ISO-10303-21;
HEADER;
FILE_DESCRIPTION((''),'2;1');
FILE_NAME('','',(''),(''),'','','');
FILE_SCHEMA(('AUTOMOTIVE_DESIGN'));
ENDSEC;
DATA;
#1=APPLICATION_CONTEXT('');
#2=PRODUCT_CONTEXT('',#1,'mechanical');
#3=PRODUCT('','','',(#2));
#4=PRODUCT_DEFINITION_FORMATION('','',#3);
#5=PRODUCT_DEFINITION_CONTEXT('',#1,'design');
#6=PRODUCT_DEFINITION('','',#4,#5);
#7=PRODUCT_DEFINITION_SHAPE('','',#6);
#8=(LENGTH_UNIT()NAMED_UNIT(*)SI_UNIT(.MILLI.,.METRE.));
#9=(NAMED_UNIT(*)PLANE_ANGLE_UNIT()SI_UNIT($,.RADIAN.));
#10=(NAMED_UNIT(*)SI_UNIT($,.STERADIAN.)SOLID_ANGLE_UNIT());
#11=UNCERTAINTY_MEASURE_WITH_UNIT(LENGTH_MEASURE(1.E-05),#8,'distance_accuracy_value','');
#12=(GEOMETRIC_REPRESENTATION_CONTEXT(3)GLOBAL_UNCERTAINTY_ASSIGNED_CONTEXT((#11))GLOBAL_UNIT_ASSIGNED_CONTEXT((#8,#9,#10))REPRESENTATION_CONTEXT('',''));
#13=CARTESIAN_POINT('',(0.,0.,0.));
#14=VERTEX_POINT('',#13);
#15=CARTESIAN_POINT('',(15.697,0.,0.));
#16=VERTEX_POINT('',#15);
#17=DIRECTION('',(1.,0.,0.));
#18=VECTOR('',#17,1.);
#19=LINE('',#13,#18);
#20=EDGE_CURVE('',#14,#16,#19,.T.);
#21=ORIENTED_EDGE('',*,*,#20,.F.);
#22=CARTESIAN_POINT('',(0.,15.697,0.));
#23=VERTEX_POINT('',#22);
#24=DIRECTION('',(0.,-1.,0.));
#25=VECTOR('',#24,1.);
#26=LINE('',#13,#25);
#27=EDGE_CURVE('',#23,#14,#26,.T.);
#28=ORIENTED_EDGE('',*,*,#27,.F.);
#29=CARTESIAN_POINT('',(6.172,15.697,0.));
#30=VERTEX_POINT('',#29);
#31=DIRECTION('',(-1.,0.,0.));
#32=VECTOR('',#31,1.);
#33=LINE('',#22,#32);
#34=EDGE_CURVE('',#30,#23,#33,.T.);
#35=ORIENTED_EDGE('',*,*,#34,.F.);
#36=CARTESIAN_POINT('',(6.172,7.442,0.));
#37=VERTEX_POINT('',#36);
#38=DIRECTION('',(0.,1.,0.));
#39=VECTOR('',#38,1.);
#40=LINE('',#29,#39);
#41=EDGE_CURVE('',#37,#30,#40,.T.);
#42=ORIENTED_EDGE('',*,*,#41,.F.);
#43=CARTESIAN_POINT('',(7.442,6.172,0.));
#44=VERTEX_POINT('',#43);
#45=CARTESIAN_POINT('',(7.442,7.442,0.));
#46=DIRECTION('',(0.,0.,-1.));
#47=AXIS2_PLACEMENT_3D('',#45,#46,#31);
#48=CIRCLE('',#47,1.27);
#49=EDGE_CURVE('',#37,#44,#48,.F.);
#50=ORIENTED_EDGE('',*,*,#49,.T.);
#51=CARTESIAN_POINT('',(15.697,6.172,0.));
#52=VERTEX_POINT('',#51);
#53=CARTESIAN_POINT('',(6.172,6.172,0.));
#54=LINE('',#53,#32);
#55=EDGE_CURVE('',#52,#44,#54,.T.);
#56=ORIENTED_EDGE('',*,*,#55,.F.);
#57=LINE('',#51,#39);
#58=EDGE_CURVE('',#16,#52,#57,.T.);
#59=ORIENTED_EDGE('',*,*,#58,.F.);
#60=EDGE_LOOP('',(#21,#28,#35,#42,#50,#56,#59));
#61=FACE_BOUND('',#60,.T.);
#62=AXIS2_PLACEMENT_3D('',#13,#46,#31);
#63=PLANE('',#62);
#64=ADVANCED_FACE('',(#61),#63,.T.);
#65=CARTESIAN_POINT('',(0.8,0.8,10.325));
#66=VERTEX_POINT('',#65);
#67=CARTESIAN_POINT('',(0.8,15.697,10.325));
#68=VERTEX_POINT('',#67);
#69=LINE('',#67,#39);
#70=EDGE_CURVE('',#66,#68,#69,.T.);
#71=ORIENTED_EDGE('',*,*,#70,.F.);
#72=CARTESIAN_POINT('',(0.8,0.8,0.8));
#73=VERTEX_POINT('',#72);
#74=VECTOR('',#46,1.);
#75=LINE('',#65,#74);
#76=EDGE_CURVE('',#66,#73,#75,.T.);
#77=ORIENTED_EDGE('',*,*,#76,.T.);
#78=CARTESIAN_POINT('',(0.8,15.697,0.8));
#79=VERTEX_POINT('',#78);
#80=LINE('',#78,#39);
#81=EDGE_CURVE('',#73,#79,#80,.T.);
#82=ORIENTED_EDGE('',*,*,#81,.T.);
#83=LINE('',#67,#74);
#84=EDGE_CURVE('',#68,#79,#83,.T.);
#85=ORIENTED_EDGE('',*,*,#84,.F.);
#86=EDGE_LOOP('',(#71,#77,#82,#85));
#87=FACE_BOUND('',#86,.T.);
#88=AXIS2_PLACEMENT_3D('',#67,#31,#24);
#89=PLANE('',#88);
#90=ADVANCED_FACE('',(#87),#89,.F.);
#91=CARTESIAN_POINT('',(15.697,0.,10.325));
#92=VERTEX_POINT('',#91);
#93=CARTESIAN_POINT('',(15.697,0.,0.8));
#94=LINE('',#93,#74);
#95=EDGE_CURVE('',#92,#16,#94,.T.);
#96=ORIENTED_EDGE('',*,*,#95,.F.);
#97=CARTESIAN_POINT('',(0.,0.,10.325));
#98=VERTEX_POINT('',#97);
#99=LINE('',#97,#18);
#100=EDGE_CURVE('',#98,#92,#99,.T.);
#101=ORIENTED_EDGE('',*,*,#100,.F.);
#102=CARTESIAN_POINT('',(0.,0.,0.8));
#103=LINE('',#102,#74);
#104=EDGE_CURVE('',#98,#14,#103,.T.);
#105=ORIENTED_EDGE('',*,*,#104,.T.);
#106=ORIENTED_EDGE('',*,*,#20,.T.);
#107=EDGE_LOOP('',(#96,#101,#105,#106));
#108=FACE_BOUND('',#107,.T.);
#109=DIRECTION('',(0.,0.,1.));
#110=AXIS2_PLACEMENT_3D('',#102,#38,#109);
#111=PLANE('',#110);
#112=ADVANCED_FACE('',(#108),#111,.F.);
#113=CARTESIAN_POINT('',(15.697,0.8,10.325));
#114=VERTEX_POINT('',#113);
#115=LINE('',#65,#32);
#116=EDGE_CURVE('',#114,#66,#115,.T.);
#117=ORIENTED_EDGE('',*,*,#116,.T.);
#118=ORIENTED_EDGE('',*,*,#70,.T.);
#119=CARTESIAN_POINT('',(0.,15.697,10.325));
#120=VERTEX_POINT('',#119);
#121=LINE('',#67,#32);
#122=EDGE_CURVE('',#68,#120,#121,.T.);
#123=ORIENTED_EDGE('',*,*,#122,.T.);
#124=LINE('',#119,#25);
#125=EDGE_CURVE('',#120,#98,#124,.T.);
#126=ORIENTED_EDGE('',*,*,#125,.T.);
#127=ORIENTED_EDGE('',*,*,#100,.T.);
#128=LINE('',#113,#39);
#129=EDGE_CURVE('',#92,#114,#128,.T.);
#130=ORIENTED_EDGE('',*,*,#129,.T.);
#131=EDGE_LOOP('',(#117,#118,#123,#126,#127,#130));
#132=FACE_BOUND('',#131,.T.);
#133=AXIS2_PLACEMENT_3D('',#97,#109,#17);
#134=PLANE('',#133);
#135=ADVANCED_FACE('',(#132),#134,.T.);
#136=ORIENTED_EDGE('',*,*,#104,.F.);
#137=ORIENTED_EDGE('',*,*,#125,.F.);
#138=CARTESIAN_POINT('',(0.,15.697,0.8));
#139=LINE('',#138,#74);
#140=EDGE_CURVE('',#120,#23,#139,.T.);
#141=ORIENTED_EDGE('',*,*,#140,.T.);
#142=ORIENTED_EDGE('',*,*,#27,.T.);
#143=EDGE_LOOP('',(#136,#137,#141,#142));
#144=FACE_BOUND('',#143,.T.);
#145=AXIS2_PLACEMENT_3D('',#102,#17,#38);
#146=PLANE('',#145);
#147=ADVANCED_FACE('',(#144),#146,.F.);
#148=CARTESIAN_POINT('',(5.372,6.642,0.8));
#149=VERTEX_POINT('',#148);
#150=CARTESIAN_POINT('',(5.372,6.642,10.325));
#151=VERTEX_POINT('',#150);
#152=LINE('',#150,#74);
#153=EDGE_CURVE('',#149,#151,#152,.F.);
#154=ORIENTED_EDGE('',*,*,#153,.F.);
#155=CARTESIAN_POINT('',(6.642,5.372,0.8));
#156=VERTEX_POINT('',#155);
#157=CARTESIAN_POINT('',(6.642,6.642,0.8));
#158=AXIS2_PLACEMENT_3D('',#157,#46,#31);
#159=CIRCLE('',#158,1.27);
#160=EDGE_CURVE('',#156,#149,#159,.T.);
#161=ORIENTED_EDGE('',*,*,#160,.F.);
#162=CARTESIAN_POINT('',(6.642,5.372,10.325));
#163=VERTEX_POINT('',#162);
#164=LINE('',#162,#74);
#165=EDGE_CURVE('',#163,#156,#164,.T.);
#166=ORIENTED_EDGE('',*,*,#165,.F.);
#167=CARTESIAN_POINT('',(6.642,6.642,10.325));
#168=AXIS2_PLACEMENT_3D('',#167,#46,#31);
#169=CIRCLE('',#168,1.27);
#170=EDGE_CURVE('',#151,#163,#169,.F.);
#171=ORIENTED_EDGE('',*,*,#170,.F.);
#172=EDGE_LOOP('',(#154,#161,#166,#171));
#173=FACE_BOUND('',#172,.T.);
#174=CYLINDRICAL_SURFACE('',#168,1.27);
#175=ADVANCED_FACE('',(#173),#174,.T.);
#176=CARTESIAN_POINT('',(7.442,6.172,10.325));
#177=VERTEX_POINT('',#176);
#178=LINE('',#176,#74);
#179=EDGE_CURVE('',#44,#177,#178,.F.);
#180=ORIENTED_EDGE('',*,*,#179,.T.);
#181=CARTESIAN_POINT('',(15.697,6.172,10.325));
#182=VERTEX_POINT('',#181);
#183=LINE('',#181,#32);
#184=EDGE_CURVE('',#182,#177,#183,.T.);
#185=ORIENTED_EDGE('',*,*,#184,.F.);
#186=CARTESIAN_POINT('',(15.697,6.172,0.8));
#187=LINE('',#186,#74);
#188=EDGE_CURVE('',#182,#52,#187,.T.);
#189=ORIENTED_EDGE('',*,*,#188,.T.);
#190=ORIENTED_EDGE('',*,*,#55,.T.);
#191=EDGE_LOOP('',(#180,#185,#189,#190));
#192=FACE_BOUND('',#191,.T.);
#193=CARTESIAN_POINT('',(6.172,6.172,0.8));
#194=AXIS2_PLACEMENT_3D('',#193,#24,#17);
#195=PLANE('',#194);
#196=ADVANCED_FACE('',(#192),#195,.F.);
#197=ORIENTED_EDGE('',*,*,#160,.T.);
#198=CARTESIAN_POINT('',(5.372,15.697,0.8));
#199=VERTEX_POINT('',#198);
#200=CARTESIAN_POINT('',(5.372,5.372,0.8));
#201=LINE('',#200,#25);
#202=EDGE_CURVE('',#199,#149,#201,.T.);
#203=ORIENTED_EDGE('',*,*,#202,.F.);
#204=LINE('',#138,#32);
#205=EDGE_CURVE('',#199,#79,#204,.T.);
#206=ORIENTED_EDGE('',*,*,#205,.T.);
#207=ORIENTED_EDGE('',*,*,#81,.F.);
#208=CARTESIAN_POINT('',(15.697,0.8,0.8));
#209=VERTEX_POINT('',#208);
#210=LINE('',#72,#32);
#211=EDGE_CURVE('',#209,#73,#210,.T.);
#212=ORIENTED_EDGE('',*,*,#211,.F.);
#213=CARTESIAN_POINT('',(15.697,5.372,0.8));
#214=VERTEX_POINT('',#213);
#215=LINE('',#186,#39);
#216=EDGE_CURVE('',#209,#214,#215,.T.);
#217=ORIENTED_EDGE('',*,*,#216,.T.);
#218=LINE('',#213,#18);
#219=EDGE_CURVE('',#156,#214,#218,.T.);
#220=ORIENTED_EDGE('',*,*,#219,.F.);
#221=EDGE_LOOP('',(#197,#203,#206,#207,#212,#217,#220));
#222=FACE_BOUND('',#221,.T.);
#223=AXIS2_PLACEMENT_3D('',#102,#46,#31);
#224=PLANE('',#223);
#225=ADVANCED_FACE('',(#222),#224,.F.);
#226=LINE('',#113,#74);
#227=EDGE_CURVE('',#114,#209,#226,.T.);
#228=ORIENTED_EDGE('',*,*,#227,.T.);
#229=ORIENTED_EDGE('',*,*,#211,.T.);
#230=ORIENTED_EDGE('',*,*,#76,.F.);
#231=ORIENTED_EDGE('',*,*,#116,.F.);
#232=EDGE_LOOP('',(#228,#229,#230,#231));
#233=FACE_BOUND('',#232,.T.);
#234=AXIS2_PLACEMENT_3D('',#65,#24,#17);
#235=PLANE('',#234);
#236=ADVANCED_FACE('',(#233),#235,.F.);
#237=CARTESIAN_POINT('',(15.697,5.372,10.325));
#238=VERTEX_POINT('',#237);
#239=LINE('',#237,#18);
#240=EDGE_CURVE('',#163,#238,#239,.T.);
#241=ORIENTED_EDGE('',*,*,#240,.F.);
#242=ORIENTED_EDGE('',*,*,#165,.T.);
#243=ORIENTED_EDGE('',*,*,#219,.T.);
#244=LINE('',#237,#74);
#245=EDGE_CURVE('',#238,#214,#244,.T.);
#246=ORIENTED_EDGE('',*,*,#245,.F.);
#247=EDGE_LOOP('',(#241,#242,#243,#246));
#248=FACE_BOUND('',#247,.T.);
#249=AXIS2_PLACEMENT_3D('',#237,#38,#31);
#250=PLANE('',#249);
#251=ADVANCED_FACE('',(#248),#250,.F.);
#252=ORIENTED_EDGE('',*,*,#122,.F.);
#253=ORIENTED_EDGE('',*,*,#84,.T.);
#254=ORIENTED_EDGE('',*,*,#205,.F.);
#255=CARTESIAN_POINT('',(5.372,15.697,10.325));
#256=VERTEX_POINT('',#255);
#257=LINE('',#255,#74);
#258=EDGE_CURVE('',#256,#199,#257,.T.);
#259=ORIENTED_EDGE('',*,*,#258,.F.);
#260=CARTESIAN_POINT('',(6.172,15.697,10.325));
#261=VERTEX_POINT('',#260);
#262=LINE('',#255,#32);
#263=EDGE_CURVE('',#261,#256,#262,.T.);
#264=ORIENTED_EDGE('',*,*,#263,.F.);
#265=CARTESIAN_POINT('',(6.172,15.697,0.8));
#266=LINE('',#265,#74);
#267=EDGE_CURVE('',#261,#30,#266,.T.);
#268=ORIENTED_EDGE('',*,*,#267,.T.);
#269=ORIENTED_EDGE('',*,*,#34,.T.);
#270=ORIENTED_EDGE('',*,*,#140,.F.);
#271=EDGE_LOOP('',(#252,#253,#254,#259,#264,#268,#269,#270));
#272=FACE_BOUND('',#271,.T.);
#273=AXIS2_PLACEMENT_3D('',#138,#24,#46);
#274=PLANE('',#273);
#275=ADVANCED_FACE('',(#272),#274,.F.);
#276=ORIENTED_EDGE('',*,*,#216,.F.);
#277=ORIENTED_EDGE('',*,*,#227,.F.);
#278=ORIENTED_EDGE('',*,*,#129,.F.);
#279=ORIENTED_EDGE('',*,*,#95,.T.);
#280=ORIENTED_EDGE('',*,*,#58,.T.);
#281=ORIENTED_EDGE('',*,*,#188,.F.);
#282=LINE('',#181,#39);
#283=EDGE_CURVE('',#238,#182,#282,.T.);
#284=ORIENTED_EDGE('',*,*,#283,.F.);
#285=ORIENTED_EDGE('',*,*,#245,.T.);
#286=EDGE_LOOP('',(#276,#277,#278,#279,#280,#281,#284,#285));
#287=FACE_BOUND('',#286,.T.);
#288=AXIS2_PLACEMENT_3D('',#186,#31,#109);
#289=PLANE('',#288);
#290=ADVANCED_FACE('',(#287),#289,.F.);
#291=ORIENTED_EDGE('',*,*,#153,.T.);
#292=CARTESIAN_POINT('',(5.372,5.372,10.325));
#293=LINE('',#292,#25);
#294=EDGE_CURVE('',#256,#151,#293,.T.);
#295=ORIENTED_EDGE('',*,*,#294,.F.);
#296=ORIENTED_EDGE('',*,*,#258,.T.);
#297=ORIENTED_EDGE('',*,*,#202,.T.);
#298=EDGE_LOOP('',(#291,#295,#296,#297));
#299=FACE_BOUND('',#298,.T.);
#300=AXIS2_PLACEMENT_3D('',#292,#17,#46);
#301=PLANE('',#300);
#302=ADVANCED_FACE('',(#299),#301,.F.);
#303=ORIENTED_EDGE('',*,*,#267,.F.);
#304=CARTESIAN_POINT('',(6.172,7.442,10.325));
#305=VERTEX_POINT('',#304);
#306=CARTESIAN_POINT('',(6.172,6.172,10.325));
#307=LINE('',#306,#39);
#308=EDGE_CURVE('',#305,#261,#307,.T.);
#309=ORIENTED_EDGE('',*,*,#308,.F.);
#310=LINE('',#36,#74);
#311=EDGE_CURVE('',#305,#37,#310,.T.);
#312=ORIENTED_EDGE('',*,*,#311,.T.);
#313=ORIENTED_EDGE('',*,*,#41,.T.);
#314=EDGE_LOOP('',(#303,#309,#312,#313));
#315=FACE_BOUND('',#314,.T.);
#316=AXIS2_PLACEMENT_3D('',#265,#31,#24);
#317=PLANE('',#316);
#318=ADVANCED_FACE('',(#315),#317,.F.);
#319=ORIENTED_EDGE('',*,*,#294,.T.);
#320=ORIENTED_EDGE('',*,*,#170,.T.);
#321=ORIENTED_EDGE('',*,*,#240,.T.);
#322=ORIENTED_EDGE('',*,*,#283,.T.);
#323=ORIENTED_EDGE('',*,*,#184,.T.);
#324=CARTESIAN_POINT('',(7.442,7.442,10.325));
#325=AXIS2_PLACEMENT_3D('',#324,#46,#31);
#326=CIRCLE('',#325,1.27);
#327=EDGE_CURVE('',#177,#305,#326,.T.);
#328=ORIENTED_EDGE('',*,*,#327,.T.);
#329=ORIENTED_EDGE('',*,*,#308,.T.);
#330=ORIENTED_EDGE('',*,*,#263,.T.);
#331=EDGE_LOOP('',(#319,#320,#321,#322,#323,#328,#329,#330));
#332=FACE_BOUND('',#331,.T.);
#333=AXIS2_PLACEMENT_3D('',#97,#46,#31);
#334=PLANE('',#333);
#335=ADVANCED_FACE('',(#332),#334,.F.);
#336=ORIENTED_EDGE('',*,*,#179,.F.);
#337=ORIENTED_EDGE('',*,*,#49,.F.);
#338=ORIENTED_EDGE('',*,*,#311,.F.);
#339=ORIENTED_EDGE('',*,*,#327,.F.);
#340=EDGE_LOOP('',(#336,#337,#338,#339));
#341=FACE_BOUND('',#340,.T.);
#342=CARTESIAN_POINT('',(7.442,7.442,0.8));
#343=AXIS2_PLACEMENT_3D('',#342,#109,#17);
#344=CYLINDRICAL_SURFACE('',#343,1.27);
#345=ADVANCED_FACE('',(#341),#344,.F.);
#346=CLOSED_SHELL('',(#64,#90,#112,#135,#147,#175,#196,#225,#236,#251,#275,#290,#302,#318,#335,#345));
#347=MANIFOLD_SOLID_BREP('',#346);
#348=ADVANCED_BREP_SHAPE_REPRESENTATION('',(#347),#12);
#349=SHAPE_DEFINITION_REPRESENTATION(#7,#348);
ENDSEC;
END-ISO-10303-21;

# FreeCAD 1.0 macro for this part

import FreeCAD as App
import Part
import Sketcher
from FreeCAD import Vector
Q = App.Units.Quantity


def edges_at(feature, points):
    """Names of the edges that pass closest to the given points."""
    edges = feature.Shape.Edges
    near = lambda p: min(range(len(edges)), key=lambda i: edges[i].distToShape(Part.Vertex(*p))[0])
    return sorted({f"Edge{near(p) + 1}" for p in points})

doc = App.newDocument("Part")
body = doc.addObject("PartDesign::Body", "Body")

sketch1 = body.newObject("Sketcher::SketchObject", "Sketch")
sketch1.AttachmentSupport = (doc.getObject("XY_Plane"), [""])
sketch1.MapMode = "FlatFace"
sketch1.addGeometry([
    Part.LineSegment(Vector(0, 15.697, 0), Vector(0, 0, 0)),
    Part.LineSegment(Vector(0, 0, 0), Vector(15.697, 0, 0)),
    Part.LineSegment(Vector(15.697, 0, 0), Vector(15.697, 6.172, 0)),
    Part.LineSegment(Vector(15.697, 6.172, 0), Vector(6.172, 6.172, 0)),
    Part.LineSegment(Vector(6.172, 6.172, 0), Vector(6.172, 15.697, 0)),
    Part.LineSegment(Vector(6.172, 15.697, 0), Vector(0, 15.697, 0)),
], False)
sketch1.addConstraint([
    Sketcher.Constraint("Coincident", 0, 2, 1, 1),
    Sketcher.Constraint("Coincident", 1, 2, 2, 1),
    Sketcher.Constraint("Coincident", 2, 2, 3, 1),
    Sketcher.Constraint("Coincident", 3, 2, 4, 1),
    Sketcher.Constraint("Coincident", 4, 2, 5, 1),
    Sketcher.Constraint("Coincident", 5, 2, 0, 1),
    Sketcher.Constraint("Vertical", 0),
    Sketcher.Constraint("Horizontal", 1),
    Sketcher.Constraint("Vertical", 2),
    Sketcher.Constraint("Horizontal", 3),
    Sketcher.Constraint("Vertical", 4),
    Sketcher.Constraint("Horizontal", 5),
    Sketcher.Constraint("Coincident", 0, 2, -1, 1),
    Sketcher.Constraint("Equal", 1, 0),
    Sketcher.Constraint("Equal", 5, 2),
    Sketcher.Constraint("DistanceX", 3, 2, 3, 1, Q("0.375 in")),
    Sketcher.Constraint("DistanceX", 1, 1, 1, 2, Q("15.697 mm")),
])
pad1 = body.newObject("PartDesign::Pad", "Pad")
pad1.Profile = sketch1
pad1.Length = 0.8

sketch2 = body.newObject("Sketcher::SketchObject", "Sketch001")
sketch2.AttachmentSupport = (doc.getObject("XY_Plane"), [""])
sketch2.MapMode = "FlatFace"
sketch2.AttachmentOffset = App.Placement(Vector(0, 0, 0.8), App.Rotation())
sketch2.addGeometry([
    Part.LineSegment(Vector(15.697, 0.8, 0), Vector(0.8, 0.8, 0)),
    Part.LineSegment(Vector(0.8, 0.8, 0), Vector(0.8, 15.697, 0)),
    Part.LineSegment(Vector(0.8, 15.697, 0), Vector(0, 15.697, 0)),
    Part.LineSegment(Vector(0, 15.697, 0), Vector(0, 0, 0)),
    Part.LineSegment(Vector(0, 0, 0), Vector(15.697, 0, 0)),
    Part.LineSegment(Vector(15.697, 0, 0), Vector(15.697, 0.8, 0)),
    Part.LineSegment(Vector(5.372, 5.372, 0), Vector(15.697, 5.372, 0)),
    Part.LineSegment(Vector(15.697, 5.372, 0), Vector(15.697, 6.172, 0)),
    Part.LineSegment(Vector(15.697, 6.172, 0), Vector(6.172, 6.172, 0)),
    Part.LineSegment(Vector(6.172, 6.172, 0), Vector(6.172, 15.697, 0)),
    Part.LineSegment(Vector(6.172, 15.697, 0), Vector(5.372, 15.697, 0)),
    Part.LineSegment(Vector(5.372, 15.697, 0), Vector(5.372, 5.372, 0)),
], False)
sketch2.addConstraint([
    Sketcher.Constraint("Coincident", 0, 2, 1, 1),
    Sketcher.Constraint("Coincident", 1, 2, 2, 1),
    Sketcher.Constraint("Coincident", 2, 2, 3, 1),
    Sketcher.Constraint("Coincident", 3, 2, 4, 1),
    Sketcher.Constraint("Coincident", 4, 2, 5, 1),
    Sketcher.Constraint("Coincident", 5, 2, 0, 1),
    Sketcher.Constraint("Coincident", 6, 2, 7, 1),
    Sketcher.Constraint("Coincident", 7, 2, 8, 1),
    Sketcher.Constraint("Coincident", 8, 2, 9, 1),
    Sketcher.Constraint("Coincident", 9, 2, 10, 1),
    Sketcher.Constraint("Coincident", 10, 2, 11, 1),
    Sketcher.Constraint("Coincident", 11, 2, 6, 1),
    Sketcher.Constraint("Horizontal", 0),
    Sketcher.Constraint("Vertical", 1),
    Sketcher.Constraint("Horizontal", 2),
    Sketcher.Constraint("Vertical", 3),
    Sketcher.Constraint("Horizontal", 4),
    Sketcher.Constraint("Vertical", 5),
    Sketcher.Constraint("Horizontal", 6),
    Sketcher.Constraint("Vertical", 7),
    Sketcher.Constraint("Horizontal", 8),
    Sketcher.Constraint("Vertical", 9),
    Sketcher.Constraint("Horizontal", 10),
    Sketcher.Constraint("Vertical", 11),
    Sketcher.Constraint("Coincident", 3, 2, -1, 1),
    Sketcher.Constraint("Horizontal", 2, 2, 9, 2),
    Sketcher.Constraint("Vertical", 5, 2, 6, 2),
    Sketcher.Constraint("Equal", 2, 10),
    Sketcher.Constraint("Equal", 0, 1),
    Sketcher.Constraint("Equal", 4, 3),
    Sketcher.Constraint("Equal", 5, 7),
    Sketcher.Constraint("Equal", 8, 9),
    Sketcher.Constraint("DistanceX", 8, 2, 8, 1, Q("0.375 in")),
    Sketcher.Constraint("DistanceY", 5, 2, 6, 2, Q("0.18 in")),
    Sketcher.Constraint("DistanceX", 0, 2, 0, 1, Q("14.897 mm")),
])
pad2 = body.newObject("PartDesign::Pad", "Pad001")
pad2.Profile = sketch2
pad2.Length = Q("0.375 in")
doc.recompute()

fillet = body.newObject("PartDesign::Fillet", "Fillet")
fillet.Base = (pad2, edges_at(pad2, [(6.172, 6.172, 5.162), (5.372, 5.372, 5.562)]))
fillet.Radius = Q("0.05 in")

doc.recompute()
